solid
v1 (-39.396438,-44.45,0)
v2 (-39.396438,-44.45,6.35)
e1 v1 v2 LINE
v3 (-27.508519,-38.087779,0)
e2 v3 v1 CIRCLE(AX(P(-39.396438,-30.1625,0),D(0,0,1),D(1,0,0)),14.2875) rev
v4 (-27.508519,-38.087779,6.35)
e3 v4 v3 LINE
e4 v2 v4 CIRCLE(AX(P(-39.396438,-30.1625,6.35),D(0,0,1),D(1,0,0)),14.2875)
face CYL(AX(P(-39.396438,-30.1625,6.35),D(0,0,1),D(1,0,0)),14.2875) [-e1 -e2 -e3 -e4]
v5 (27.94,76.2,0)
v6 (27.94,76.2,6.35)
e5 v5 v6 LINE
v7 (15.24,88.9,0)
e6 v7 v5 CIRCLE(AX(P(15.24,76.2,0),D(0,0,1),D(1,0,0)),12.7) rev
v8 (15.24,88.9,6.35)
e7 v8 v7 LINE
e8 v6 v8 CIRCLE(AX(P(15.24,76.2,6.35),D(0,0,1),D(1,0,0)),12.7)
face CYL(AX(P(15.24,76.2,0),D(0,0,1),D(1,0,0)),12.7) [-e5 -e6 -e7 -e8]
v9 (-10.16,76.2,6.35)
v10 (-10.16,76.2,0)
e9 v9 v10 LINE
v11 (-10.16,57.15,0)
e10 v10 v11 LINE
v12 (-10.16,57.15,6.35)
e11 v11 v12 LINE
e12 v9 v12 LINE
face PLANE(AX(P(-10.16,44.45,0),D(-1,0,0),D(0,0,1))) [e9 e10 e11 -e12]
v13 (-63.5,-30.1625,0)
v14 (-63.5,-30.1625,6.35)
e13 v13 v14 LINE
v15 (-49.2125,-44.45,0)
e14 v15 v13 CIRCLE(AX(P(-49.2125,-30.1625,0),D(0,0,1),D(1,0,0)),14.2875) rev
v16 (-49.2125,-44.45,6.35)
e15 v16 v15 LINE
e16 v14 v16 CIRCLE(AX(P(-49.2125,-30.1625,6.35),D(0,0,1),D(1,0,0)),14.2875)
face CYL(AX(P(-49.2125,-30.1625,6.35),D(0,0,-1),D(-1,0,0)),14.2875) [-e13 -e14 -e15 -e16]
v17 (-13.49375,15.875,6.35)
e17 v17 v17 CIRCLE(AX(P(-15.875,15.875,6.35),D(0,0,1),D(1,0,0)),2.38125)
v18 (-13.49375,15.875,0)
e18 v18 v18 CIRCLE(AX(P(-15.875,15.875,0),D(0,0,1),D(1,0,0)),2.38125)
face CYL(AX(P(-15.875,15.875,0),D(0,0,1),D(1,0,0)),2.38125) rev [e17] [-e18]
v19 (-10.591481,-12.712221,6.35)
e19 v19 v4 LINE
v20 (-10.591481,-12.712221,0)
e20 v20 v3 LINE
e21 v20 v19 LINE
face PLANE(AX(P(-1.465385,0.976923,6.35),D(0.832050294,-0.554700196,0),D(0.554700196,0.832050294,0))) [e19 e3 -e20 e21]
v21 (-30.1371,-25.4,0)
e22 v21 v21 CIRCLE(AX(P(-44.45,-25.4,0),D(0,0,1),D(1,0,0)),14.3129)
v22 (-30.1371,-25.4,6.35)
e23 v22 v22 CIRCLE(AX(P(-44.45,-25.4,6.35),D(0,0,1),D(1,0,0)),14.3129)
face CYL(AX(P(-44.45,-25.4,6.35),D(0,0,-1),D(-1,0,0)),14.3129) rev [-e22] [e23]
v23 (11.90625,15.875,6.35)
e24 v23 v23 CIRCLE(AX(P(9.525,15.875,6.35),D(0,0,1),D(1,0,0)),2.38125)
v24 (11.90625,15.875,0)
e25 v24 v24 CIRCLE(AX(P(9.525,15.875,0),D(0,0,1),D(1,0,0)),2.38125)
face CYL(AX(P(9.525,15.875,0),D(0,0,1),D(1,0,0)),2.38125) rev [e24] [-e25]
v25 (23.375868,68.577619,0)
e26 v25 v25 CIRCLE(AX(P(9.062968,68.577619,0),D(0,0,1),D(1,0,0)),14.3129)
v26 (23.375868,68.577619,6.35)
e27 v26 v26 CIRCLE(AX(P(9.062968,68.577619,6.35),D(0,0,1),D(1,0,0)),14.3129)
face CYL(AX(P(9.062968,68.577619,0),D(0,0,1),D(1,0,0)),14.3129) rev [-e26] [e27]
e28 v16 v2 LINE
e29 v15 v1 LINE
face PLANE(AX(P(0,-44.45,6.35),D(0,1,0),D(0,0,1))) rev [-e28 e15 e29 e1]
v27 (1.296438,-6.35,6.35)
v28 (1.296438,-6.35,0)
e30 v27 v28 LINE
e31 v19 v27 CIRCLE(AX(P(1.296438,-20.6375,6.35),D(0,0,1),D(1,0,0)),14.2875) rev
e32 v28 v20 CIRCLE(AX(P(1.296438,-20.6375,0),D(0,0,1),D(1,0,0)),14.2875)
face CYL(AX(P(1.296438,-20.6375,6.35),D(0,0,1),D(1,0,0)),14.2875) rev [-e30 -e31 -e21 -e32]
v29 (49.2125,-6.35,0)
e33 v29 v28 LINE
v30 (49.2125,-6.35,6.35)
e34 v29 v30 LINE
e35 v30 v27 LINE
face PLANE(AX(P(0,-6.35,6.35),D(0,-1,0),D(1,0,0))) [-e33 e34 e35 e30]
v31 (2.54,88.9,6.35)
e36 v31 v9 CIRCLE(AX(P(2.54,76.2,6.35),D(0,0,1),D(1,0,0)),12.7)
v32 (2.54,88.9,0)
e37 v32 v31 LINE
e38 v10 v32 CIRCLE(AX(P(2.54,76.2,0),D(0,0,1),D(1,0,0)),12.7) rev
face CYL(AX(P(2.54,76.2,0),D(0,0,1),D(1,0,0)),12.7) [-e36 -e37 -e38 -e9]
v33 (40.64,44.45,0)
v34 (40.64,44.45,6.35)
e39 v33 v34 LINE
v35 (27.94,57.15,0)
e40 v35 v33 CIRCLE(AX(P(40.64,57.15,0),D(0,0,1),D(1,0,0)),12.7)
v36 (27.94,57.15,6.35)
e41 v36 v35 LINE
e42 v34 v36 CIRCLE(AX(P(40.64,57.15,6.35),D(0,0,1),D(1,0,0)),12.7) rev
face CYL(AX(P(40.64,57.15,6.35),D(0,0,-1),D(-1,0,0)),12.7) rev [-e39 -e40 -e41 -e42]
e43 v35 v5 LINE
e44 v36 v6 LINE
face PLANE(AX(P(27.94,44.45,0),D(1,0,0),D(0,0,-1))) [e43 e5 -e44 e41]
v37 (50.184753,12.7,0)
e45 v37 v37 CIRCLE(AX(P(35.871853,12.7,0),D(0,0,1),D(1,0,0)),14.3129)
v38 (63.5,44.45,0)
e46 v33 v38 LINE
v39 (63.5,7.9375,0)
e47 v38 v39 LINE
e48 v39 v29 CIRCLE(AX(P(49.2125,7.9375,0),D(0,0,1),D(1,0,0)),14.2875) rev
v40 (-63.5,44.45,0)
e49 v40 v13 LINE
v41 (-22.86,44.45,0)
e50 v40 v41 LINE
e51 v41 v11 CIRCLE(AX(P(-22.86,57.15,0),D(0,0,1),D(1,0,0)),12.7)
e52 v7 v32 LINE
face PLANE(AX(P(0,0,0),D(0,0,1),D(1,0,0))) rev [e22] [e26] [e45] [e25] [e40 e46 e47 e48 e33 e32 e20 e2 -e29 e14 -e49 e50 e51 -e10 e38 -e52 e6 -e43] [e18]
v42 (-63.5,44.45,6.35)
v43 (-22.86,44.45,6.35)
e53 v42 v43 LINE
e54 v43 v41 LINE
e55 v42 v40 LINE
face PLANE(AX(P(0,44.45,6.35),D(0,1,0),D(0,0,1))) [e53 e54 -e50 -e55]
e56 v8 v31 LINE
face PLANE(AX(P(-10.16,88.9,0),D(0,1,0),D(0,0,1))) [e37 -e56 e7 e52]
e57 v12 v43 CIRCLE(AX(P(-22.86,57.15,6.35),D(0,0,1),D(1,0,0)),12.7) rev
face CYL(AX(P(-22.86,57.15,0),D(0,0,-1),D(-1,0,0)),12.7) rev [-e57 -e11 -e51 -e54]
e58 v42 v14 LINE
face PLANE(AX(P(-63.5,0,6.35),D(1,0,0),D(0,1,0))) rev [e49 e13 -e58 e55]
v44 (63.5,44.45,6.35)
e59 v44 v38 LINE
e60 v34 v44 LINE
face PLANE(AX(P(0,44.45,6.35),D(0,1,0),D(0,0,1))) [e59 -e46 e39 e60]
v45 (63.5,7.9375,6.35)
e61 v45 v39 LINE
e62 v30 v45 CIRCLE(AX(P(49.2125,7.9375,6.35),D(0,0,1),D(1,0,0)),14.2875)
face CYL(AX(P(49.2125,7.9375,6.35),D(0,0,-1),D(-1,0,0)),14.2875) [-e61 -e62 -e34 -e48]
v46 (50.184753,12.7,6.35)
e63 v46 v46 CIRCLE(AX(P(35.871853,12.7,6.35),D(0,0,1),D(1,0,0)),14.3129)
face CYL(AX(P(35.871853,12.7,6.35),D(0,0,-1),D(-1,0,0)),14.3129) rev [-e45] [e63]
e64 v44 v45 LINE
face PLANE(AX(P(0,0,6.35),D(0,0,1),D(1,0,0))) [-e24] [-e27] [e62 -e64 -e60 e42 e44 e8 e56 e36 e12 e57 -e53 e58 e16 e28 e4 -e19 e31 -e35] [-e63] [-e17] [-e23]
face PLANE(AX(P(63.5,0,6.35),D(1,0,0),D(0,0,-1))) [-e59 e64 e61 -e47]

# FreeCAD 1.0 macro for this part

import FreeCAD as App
import Part
import Sketcher
from FreeCAD import Vector
Q = App.Units.Quantity


def edges_at(feature, points):
    """Names of the edges that pass closest to the given points."""
    edges = feature.Shape.Edges
    near = lambda p: min(range(len(edges)), key=lambda i: edges[i].distToShape(Part.Vertex(*p))[0])
    return sorted({f"Edge{near(p) + 1}" for p in points})

doc = App.newDocument("Part")
body = doc.addObject("PartDesign::Body", "Body")

# Sketch on XY plane
sketch1 = body.newObject("Sketcher::SketchObject", "Sketch")
sketch1.AttachmentSupport = (doc.getObject("XY_Plane"), [""])
sketch1.MapMode = "FlatFace"
sketch1.addGeometry([
    Part.LineSegment(Vector(-6, -6, 0), Vector(64, -6, 0)),  # 0
    Part.LineSegment(Vector(64, -6, 0), Vector(64, 44, 0)),  # 1
    Part.LineSegment(Vector(64, 44, 0), Vector(-64, 44, 0)),  # 2
    Part.LineSegment(Vector(-64, 44, 0), Vector(-64, -44, 0)),  # 3
    Part.LineSegment(Vector(-64, -44, 0), Vector(-32, -44, 0)),  # 4
    Part.LineSegment(Vector(-32, -44, 0), Vector(-6, -6, 0)),  # 5
    Part.Circle(Vector(-44, -25, 0), Vector(0, 0, 1), 14),  # 6
    Part.Circle(Vector(36, 13, 0), Vector(0, 0, 1), 14),  # 7
], False)
sketch1.addConstraint([
    Sketcher.Constraint("Coincident", 0, 2, 1, 1),
    Sketcher.Constraint("Coincident", 1, 2, 2, 1),
    Sketcher.Constraint("Coincident", 2, 2, 3, 1),
    Sketcher.Constraint("Coincident", 3, 2, 4, 1),
    Sketcher.Constraint("Coincident", 4, 2, 5, 1),
    Sketcher.Constraint("Coincident", 5, 2, 0, 1),
    Sketcher.Constraint("Horizontal", 0),
    Sketcher.Constraint("Vertical", 1),
    Sketcher.Constraint("Horizontal", 2),
    Sketcher.Constraint("Vertical", 3),
    Sketcher.Constraint("Horizontal", 4),
    Sketcher.Constraint("Equal", 6, 7),
    Sketcher.Constraint("Symmetric", 1, 2, 3, 2, -1, 1),
    Sketcher.Constraint("DistanceX", 2, 2, 2, 1, Q("5 in")),
    Sketcher.Constraint("DistanceY", 1, 1, 1, 2, Q("2 in")),
    Sketcher.Constraint("Diameter", 6, Q("1.127 in")),
    Sketcher.Constraint("DistanceY", 3, 2, 3, 1, Q("3.5 in")),
    Sketcher.Constraint("DistanceY", 6, 3, -1, 1, Q("1 in")),
    Sketcher.Constraint("DistanceX", 4, 2, 5, 2, Q("1 in")),
    Sketcher.Constraint("DistanceX", 0, 1, 0, 2, Q("2.75 in")),
    Sketcher.Constraint("DistanceY", -1, 1, 7, 3, Q("0.5 in")),
    Sketcher.Constraint("DistanceX", 6, 3, 4, 2, Q("0.5 in")),
    Sketcher.Constraint("DistanceX", -1, 1, 7, 3, Q("35.871853 mm")),
])
pad1 = body.newObject("PartDesign::Pad", "Pad")
pad1.Profile = sketch1
pad1.Length = Q("0.25 in")
doc.recompute()

fillet = body.newObject("PartDesign::Fillet", "Fillet")
fillet.Base = (pad1, edges_at(pad1, [
    (-31.75, -44.45, 3.175),
    (-63.5, -44.45, 3.175),
    (63.5, -6.35, 3.175),
    (-6.35, -6.35, 3.175),
]))
fillet.Radius = Q("0.5625 in")

# Sketch on XY plane
sketch2 = body.newObject("Sketcher::SketchObject", "Sketch001")
sketch2.AttachmentSupport = (doc.getObject("XY_Plane"), [""])
sketch2.MapMode = "FlatFace"
sketch2.AttachmentOffset = App.Placement(Vector(0, 0, 0.25 * 25.4), App.Rotation())
sketch2.addGeometry([
    Part.LineSegment(Vector(-10, 89, 0), Vector(-10, 44, 0)),
    Part.LineSegment(Vector(-10, 44, 0), Vector(28, 44, 0)),
    Part.LineSegment(Vector(28, 44, 0), Vector(28, 89, 0)),
    Part.LineSegment(Vector(28, 89, 0), Vector(-10, 89, 0)),
], False)
sketch2.addConstraint([
    Sketcher.Constraint("Coincident", 0, 2, 1, 1),
    Sketcher.Constraint("Coincident", 1, 2, 2, 1),
    Sketcher.Constraint("Coincident", 2, 2, 3, 1),
    Sketcher.Constraint("Coincident", 3, 2, 0, 1),
    Sketcher.Constraint("Vertical", 0),
    Sketcher.Constraint("Horizontal", 1),
    Sketcher.Constraint("Vertical", 2),
    Sketcher.Constraint("Horizontal", 3),
    Sketcher.Constraint("DistanceX", 1, 1, 1, 2, Q("1.5 in")),
    Sketcher.Constraint("DistanceY", 0, 2, 0, 1, Q("1.75 in")),
    Sketcher.Constraint("DistanceX", 0, 2, -1, 1, Q("0.4 in")),
    Sketcher.Constraint("DistanceY", -1, 1, 2, 2, Q("3.5 in")),
])
pad2 = body.newObject("PartDesign::Pad", "Pad001")
pad2.Profile = sketch2
pad2.Length = Q("0.25 in")
pad2.Reversed = True

# Sketch on XY plane
sketch3 = body.newObject("Sketcher::SketchObject", "Sketch002")
sketch3.AttachmentSupport = (doc.getObject("XY_Plane"), [""])
sketch3.MapMode = "FlatFace"
sketch3.AttachmentOffset = App.Placement(Vector(0, 0, 0.25 * 25.4), App.Rotation())
sketch3.addGeometry(Part.Circle(Vector(9, 69, 0), Vector(0, 0, 1), 14), False)
sketch3.addConstraint([
    Sketcher.Constraint("Diameter", 0, Q("1.127 in")),
    Sketcher.Constraint("DistanceY", -1, 1, 0, 3, Q("68.577619 mm")),
    Sketcher.Constraint("DistanceX", -1, 1, 0, 3, Q("9.062968 mm")),
])
pocket1 = body.newObject("PartDesign::Pocket", "Pocket")
pocket1.Profile = sketch3
pocket1.Type = "ThroughAll"

# Sketch on XY plane
sketch4 = body.newObject("Sketcher::SketchObject", "Sketch003")
sketch4.AttachmentSupport = (doc.getObject("XY_Plane"), [""])
sketch4.MapMode = "FlatFace"
sketch4.AttachmentOffset = App.Placement(Vector(0, 0, 0.25 * 25.4), App.Rotation())
sketch4.addGeometry([
    Part.Circle(Vector(-15.9, 15.9, 0), Vector(0, 0, 1), 2.4),
    Part.Circle(Vector(9.5, 15.9, 0), Vector(0, 0, 1), 2.4),
], False)
sketch4.addConstraint([
    Sketcher.Constraint("Equal", 0, 1),
    Sketcher.Constraint("Horizontal", 0, 3, 1, 3),
    Sketcher.Constraint("Diameter", 0, Q("0.1875 in")),
    Sketcher.Constraint("DistanceX", 0, 3, 1, 3, Q("1 in")),
    Sketcher.Constraint("DistanceX", 0, 3, -1, 1, Q("0.625 in")),
    Sketcher.Constraint("DistanceY", -1, 1, 0, 3, Q("0.625 in")),
])
pocket2 = body.newObject("PartDesign::Pocket", "Pocket001")
pocket2.Profile = sketch4
pocket2.Type = "ThroughAll"
doc.recompute()

fillet2 = body.newObject("PartDesign::Fillet", "Fillet001")
fillet2.Base = (pocket2, edges_at(pocket2, [
    (-10.16, 44.45, 3.175),
    (-10.16, 88.9, 3.175),
    (27.94, 88.9, 3.175),
    (27.94, 44.45, 3.175),
]))
fillet2.Radius = Q("0.5 in")

doc.recompute()
